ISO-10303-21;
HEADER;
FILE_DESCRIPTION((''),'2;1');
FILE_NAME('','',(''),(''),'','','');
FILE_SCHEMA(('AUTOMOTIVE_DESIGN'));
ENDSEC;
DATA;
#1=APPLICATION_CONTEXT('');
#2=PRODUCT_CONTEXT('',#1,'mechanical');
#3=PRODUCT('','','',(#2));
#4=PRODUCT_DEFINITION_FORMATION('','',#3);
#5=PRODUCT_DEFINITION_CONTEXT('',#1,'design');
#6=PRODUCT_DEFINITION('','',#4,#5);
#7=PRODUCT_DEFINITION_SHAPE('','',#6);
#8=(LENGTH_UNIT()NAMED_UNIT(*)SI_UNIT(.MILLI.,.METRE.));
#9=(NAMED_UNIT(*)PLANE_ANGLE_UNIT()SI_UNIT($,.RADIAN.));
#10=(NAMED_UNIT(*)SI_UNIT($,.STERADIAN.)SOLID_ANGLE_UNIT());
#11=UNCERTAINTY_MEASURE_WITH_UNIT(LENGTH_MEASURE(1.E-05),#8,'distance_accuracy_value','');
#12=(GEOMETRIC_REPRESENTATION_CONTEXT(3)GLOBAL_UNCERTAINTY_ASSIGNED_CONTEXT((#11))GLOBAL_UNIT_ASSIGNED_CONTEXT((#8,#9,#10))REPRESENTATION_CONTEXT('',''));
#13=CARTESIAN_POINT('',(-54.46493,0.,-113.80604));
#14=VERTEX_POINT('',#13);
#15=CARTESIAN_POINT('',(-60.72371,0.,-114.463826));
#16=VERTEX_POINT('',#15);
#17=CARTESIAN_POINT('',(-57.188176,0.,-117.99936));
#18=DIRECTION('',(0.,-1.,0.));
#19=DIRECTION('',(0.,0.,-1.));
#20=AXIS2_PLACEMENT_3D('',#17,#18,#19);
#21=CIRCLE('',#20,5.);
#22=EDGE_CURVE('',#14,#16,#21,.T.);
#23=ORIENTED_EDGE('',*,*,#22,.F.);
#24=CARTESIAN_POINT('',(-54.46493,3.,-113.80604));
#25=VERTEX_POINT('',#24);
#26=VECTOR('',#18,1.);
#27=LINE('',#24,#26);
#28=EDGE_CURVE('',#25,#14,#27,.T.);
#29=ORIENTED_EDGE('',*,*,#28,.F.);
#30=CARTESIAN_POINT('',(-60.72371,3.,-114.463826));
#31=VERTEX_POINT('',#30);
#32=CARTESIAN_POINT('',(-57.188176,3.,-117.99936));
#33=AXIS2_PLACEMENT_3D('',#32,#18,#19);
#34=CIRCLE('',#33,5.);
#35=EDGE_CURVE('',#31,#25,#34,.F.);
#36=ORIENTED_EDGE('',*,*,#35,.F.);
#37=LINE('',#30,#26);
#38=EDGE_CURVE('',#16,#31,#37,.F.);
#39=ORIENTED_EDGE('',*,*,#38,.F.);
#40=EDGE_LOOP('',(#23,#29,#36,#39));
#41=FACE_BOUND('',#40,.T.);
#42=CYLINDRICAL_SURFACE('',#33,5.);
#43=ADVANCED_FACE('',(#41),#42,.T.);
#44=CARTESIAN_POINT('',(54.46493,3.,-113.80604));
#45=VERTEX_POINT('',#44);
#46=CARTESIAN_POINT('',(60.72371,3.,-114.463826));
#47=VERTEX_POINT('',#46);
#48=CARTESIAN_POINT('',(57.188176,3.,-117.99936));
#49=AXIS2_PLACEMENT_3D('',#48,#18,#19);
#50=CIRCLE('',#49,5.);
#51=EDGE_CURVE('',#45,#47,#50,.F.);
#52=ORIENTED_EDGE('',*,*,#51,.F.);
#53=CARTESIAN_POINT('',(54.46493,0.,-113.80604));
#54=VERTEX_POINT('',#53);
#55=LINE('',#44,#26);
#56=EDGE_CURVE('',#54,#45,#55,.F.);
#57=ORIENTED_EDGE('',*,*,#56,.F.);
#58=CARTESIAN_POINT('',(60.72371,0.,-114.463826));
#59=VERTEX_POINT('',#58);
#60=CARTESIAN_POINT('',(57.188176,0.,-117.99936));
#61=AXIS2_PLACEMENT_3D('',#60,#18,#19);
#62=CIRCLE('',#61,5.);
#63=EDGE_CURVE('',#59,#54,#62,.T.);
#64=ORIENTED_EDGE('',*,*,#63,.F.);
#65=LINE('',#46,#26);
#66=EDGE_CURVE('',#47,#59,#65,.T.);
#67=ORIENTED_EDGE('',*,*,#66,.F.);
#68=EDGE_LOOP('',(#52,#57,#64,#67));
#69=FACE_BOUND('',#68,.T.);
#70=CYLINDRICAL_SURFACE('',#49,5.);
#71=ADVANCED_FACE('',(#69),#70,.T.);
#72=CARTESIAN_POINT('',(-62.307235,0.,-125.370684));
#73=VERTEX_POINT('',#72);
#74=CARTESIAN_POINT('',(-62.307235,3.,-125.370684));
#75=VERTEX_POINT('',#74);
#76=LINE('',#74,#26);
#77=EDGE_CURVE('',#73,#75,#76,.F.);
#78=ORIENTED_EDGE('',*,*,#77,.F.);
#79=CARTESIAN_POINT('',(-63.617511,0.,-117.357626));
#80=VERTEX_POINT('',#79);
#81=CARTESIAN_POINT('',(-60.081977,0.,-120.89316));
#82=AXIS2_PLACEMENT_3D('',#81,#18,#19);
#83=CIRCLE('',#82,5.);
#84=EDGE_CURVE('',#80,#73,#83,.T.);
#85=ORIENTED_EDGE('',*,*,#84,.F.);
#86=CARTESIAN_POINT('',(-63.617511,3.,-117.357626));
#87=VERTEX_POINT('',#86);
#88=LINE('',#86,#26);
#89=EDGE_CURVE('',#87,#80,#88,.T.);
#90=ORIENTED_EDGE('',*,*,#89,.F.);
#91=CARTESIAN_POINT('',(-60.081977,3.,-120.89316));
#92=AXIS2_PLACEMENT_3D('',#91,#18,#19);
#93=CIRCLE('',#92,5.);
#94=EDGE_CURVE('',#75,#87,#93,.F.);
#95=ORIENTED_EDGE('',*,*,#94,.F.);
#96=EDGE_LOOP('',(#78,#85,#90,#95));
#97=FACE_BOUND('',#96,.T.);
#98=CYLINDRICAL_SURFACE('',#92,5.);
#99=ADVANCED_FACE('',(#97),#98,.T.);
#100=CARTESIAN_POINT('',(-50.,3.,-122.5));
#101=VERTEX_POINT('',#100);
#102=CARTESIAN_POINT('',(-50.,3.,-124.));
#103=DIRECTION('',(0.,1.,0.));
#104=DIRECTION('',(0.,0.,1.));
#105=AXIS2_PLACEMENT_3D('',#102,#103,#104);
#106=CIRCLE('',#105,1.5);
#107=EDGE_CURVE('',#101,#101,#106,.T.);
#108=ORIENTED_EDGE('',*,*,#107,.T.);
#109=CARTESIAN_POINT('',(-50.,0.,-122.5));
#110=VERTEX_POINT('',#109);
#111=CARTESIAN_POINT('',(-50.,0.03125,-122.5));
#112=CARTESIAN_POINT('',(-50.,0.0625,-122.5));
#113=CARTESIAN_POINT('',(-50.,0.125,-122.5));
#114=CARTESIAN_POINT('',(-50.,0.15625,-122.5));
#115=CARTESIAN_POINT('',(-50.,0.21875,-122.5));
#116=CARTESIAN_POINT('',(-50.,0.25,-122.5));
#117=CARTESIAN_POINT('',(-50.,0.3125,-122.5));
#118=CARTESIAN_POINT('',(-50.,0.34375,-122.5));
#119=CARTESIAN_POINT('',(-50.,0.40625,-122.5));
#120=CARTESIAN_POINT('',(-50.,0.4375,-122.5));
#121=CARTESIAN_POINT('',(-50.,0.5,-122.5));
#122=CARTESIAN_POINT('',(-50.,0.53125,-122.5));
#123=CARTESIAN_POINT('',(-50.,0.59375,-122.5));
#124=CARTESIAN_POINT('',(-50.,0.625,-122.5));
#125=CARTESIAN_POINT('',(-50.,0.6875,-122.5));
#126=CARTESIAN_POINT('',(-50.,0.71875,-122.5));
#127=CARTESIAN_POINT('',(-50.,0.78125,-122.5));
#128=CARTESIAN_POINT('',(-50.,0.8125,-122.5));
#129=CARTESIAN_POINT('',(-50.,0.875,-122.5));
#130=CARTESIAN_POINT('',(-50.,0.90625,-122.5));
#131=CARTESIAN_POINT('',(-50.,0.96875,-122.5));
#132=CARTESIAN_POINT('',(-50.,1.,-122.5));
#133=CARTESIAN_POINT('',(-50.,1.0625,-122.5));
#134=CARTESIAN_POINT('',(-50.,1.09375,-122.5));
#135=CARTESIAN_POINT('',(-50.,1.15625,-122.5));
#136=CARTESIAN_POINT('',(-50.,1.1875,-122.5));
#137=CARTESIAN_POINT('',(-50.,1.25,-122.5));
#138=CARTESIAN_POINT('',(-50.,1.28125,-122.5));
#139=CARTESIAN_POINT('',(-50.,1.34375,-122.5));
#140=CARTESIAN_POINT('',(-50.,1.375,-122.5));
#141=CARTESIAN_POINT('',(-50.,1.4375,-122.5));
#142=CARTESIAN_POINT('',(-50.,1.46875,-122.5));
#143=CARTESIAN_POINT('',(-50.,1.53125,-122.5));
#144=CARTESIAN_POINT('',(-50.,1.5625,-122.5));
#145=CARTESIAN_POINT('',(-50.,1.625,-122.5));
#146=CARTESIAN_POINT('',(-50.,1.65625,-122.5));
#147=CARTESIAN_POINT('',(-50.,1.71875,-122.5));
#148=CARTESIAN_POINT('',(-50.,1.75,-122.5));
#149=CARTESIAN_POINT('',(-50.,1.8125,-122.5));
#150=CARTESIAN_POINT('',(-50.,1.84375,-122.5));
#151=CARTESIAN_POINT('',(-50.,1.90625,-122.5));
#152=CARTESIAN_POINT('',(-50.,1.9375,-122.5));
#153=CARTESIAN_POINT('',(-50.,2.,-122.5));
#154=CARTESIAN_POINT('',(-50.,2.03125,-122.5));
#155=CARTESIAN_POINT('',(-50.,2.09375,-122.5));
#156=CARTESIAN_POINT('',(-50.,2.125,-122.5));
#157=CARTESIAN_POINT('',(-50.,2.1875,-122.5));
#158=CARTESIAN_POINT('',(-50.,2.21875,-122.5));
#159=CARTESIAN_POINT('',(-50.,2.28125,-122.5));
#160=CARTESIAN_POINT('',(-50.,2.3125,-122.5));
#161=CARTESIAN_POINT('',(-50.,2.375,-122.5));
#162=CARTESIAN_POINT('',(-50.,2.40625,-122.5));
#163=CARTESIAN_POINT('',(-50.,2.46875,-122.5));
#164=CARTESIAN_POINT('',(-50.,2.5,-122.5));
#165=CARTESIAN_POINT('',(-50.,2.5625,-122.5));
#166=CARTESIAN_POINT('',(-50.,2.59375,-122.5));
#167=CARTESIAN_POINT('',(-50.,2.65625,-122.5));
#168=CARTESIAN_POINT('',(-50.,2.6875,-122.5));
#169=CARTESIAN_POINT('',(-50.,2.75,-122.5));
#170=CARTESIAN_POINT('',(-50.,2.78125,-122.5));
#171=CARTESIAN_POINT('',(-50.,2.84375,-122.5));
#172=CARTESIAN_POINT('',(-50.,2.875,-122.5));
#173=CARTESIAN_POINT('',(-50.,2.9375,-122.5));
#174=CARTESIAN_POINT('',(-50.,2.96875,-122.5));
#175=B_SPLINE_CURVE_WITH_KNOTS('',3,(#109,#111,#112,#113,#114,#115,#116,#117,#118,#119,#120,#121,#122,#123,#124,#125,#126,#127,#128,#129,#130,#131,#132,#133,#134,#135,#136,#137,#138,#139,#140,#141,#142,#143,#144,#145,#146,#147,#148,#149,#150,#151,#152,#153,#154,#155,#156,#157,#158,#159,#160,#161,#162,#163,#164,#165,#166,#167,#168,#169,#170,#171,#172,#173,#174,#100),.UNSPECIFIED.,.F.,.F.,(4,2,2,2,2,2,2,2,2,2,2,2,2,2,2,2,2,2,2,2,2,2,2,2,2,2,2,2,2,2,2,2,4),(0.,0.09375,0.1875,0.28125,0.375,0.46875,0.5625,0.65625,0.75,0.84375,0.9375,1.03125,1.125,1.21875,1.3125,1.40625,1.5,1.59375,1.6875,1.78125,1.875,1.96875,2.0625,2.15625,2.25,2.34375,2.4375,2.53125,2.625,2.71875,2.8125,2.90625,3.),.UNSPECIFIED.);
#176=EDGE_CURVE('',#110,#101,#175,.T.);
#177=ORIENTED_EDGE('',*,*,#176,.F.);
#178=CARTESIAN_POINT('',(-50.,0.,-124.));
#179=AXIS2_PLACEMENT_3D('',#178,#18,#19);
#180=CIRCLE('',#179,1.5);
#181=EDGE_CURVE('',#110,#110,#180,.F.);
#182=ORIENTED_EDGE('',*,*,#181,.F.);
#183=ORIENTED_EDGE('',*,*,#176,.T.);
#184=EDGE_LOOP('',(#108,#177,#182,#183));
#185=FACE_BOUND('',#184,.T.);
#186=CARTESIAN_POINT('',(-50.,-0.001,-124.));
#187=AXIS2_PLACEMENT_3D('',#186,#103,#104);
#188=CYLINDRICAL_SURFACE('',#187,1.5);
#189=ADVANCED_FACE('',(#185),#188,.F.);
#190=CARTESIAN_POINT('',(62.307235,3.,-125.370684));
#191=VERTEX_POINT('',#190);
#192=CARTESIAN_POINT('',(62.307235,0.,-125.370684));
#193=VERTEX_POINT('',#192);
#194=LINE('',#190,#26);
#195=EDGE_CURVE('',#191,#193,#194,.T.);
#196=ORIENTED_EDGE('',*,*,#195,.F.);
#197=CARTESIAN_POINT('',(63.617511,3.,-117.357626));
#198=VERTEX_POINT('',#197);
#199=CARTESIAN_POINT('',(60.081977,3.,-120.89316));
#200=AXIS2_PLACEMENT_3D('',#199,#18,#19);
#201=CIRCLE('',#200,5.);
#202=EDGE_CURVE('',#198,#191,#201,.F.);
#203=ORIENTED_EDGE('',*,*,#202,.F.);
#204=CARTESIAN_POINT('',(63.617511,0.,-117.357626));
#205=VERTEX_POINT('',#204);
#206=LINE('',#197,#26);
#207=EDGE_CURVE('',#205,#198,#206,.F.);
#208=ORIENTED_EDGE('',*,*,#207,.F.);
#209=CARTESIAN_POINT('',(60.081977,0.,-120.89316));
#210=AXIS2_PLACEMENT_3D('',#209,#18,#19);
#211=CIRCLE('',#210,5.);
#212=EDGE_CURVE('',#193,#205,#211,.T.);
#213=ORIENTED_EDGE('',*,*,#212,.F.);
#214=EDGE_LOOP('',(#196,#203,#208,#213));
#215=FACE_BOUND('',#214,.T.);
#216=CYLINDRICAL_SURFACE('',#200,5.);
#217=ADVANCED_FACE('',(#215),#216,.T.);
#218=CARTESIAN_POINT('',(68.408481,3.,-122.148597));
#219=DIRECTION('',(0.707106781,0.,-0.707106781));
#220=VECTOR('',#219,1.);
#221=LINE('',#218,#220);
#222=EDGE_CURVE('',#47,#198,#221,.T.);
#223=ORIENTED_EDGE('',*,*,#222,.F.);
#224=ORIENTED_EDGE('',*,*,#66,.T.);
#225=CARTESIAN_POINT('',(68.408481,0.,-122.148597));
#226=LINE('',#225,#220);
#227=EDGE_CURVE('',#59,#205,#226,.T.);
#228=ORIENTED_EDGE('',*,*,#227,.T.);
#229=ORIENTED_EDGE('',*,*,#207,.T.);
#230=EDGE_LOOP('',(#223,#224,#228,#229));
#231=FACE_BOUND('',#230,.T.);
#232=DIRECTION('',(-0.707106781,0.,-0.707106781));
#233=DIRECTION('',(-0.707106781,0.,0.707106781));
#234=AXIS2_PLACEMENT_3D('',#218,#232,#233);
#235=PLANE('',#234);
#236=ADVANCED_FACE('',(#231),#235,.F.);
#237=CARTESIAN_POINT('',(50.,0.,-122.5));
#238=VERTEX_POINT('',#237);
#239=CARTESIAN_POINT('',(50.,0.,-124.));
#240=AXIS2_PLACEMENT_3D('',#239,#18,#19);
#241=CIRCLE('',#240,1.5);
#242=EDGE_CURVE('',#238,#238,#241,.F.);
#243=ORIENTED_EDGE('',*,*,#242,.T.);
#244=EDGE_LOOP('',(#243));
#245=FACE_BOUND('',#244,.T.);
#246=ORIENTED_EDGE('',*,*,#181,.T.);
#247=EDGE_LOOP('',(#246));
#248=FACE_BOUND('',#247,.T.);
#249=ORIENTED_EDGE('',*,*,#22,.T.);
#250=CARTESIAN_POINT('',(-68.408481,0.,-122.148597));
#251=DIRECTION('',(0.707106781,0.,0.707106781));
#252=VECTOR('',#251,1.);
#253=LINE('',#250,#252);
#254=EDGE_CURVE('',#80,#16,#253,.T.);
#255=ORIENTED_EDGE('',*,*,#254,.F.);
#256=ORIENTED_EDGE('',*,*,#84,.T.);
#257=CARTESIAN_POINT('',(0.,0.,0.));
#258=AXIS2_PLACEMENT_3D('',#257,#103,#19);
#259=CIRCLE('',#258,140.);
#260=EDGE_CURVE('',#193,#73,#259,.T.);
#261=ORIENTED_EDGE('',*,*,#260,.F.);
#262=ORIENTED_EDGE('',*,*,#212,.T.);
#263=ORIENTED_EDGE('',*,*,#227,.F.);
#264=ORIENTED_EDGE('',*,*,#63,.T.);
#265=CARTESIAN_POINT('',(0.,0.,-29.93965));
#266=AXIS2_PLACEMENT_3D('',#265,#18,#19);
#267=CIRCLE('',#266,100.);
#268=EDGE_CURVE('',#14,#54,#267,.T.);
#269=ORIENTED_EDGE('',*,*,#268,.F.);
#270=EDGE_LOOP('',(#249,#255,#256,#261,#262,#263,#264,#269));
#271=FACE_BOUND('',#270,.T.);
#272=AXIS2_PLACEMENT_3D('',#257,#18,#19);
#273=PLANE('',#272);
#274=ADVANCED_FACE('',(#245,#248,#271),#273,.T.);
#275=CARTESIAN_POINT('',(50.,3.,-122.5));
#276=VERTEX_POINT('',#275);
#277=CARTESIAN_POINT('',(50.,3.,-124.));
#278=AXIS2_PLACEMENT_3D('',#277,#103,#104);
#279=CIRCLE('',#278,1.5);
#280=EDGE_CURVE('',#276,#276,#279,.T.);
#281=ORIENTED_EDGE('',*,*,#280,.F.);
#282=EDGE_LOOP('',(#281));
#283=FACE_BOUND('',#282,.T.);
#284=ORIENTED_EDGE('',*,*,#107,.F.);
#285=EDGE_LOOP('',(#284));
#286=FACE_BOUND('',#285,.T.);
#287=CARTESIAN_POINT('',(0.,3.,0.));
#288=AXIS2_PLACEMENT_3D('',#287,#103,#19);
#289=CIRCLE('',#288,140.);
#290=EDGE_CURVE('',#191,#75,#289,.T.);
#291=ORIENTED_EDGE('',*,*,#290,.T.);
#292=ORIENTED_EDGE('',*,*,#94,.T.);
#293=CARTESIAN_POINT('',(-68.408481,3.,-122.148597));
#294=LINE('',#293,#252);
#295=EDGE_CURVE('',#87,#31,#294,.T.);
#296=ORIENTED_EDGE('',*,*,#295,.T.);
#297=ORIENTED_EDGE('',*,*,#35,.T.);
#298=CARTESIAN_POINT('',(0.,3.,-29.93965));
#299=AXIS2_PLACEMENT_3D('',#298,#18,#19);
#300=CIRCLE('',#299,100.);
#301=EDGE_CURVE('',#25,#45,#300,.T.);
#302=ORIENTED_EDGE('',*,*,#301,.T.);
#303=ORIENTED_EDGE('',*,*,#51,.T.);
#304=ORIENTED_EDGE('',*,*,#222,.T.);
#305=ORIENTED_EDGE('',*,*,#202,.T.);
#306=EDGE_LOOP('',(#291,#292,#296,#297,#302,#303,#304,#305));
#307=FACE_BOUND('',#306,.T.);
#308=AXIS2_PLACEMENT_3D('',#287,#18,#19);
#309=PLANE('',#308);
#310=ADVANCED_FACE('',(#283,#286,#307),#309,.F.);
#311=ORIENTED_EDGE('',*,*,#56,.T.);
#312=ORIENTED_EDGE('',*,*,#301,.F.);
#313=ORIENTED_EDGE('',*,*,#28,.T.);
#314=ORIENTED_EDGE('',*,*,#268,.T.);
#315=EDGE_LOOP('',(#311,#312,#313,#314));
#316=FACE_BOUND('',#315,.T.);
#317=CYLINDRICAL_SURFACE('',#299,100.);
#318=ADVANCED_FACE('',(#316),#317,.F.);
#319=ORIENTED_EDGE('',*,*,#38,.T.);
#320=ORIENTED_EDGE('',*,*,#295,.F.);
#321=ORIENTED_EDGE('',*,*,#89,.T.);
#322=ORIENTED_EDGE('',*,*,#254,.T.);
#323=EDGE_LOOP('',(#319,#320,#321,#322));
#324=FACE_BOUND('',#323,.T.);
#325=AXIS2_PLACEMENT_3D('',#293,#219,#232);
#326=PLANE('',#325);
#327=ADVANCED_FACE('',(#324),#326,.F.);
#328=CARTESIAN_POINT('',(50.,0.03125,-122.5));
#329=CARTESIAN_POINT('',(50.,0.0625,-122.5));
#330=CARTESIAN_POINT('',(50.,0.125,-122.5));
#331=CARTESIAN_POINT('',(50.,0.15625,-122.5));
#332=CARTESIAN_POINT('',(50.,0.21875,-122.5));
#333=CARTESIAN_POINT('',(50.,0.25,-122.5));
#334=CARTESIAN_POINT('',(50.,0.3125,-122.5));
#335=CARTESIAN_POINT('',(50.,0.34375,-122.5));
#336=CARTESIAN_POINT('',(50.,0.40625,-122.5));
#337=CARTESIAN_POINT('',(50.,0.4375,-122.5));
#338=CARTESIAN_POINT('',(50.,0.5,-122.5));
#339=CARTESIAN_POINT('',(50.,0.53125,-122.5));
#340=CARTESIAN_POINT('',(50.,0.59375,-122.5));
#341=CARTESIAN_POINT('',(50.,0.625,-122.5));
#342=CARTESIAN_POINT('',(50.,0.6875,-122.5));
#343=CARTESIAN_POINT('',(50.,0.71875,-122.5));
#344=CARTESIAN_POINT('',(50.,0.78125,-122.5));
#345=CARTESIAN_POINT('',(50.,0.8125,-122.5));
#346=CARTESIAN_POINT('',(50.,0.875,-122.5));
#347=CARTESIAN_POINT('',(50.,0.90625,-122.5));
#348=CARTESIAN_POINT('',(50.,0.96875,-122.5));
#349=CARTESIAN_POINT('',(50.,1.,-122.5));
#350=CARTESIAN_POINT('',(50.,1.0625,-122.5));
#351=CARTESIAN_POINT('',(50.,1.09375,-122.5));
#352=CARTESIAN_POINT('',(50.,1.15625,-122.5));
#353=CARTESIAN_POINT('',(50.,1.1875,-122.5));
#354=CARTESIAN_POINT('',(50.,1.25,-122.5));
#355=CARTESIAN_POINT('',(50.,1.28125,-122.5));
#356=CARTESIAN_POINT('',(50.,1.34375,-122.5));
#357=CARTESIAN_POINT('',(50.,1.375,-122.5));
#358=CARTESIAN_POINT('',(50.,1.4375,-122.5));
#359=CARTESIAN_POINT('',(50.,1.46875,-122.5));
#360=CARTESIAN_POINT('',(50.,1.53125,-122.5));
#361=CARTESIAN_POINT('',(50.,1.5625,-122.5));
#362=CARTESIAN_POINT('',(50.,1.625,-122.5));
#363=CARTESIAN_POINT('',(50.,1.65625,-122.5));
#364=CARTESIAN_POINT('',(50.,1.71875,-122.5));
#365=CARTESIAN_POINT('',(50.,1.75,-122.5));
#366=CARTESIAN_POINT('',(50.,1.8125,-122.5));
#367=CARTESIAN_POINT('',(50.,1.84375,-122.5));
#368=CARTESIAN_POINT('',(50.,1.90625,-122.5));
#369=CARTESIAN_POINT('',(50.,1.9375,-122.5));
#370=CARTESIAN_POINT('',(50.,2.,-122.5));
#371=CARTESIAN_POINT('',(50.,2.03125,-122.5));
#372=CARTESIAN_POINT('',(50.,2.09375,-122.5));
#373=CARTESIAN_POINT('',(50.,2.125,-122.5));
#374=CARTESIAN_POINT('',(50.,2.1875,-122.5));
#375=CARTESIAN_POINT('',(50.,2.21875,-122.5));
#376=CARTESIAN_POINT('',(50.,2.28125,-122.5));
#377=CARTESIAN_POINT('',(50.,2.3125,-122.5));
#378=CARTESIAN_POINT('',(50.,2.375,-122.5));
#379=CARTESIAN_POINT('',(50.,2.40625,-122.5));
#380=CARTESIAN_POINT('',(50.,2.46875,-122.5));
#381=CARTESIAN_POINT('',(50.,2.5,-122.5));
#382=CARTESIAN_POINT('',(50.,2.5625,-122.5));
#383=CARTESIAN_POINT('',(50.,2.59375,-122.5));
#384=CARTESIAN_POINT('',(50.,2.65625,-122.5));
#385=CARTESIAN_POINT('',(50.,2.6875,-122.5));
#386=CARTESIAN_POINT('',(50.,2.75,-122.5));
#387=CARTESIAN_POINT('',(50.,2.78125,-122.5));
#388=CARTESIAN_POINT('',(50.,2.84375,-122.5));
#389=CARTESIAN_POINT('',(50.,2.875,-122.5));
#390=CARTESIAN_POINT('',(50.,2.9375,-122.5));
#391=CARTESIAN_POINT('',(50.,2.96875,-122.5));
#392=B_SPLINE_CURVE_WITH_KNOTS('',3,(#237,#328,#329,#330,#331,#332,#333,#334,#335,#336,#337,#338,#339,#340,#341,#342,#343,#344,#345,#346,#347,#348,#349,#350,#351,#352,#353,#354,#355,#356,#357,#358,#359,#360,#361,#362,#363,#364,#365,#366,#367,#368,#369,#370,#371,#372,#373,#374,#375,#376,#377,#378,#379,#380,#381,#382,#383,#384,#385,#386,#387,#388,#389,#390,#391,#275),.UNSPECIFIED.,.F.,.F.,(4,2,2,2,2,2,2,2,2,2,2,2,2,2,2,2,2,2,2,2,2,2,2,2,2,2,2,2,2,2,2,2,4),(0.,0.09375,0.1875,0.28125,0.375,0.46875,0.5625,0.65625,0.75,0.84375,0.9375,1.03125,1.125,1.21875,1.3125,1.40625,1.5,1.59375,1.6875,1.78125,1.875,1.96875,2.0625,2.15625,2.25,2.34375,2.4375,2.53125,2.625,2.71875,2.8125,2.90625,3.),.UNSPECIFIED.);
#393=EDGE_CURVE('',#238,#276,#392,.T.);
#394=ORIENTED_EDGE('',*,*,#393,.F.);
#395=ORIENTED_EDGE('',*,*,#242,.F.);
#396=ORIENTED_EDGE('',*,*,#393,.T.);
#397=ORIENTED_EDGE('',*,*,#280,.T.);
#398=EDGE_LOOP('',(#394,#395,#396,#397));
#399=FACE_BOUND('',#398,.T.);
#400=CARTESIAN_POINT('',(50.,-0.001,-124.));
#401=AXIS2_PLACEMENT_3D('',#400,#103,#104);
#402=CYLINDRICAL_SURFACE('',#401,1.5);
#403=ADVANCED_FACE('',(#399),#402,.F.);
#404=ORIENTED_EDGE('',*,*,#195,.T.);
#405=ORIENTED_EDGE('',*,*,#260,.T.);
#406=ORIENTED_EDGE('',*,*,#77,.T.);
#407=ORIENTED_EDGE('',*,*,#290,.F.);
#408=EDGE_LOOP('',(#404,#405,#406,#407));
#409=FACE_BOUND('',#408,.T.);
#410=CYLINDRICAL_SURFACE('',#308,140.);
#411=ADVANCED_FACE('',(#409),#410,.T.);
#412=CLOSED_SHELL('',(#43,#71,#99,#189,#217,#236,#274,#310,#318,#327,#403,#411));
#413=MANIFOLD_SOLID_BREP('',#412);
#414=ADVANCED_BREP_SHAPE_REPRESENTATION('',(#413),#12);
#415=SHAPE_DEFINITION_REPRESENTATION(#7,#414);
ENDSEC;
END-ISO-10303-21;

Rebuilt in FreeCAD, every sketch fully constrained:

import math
import FreeCAD as App
import Part
import Sketcher
from FreeCAD import Vector
Q = App.Units.Quantity


def edges_at(feature, points):
    """Names of the edges that pass closest to the given points."""
    edges = feature.Shape.Edges
    near = lambda p: min(range(len(edges)), key=lambda i: edges[i].distToShape(Part.Vertex(*p))[0])
    return sorted({f"Edge{near(p) + 1}" for p in points})

doc = App.newDocument("Part")
body = doc.addObject("PartDesign::Body", "Body")

sketch1 = body.newObject("Sketcher::SketchObject", "Sketch")
sketch1.AttachmentSupport = (doc.getObject("XZ_Plane"), [""])
sketch1.MapMode = "FlatFace"
sketch1.addGeometry(Part.LineSegment(Vector(-68.408481, -122.148597, 0), Vector(-57.80188, -111.541995, 0)), False)
sketch1.addGeometry(Part.ArcOfCircle(Part.Circle(Vector(0, -29.93965, 0), Vector(0, 0, 1), 100), math.radians(-125.311316), math.radians(-54.688684)), False)
sketch1.addGeometry(Part.LineSegment(Vector(57.80188, -111.541995, 0), Vector(68.408481, -122.148597, 0)), False)
sketch1.addGeometry(Part.ArcOfCircle(Part.Circle(Vector(0, 0, 0), Vector(0, 0, 1), 140), math.radians(-119.250707), math.radians(-60.749293)), False)
sketch1.addConstraint(Sketcher.Constraint("Coincident", 0, 2, 1, 1))
sketch1.addConstraint(Sketcher.Constraint("Coincident", 1, 2, 2, 1))
sketch1.addConstraint(Sketcher.Constraint("Coincident", 2, 2, 3, 2))
sketch1.addConstraint(Sketcher.Constraint("Coincident", 3, 1, 0, 1))
sketch1.addConstraint(Sketcher.Constraint("Coincident", 3, 3, -1, 1))
sketch1.addConstraint(Sketcher.Constraint("Symmetric", 0, 2, 1, 2, -2))
sketch1.addConstraint(Sketcher.Constraint("Perpendicular", 0, 2))
sketch1.addConstraint(Sketcher.Constraint("Horizontal", 2, 2, 3, 1))
sketch1.addConstraint(Sketcher.Constraint("Radius", 1, Q("100 mm")))
sketch1.addConstraint(Sketcher.Constraint("Radius", 3, Q("140 mm")))
sketch1.addConstraint(Sketcher.Constraint("Distance", 0, Q("15 mm")))
sketch1.addConstraint(Sketcher.Constraint("DistanceY", 1, 3, -1, 1, Q("29.93965 mm")))
pad1 = body.newObject("PartDesign::Pad", "Pad")
pad1.Profile = sketch1
pad1.Length = 3
pad1.Reversed = True
doc.recompute()

fillet = body.newObject("PartDesign::Fillet", "Fillet")
fillet.Base = (pad1, edges_at(pad1, [
    (68.408, 1.5, -122.149),
    (57.802, 1.5, -111.542),
    (-57.802, 1.5, -111.542),
    (-68.408, 1.5, -122.149),
]))
fillet.Radius = 5

sketch2 = body.newObject("Sketcher::SketchObject", "Sketch001")
sketch2.AttachmentSupport = (doc.getObject("XZ_Plane"), [""])
sketch2.MapMode = "FlatFace"
sketch2.AttachmentOffset = App.Placement(Vector(0, 0, -3), App.Rotation())
sketch2.addGeometry(Part.Circle(Vector(-50, -124, 0), Vector(0, 0, 1), 1.5), False)
sketch2.addConstraint(Sketcher.Constraint("Diameter", 0, Q("3 mm")))
sketch2.addConstraint(Sketcher.Constraint("DistanceX", 0, 3, -1, 1, Q("50 mm")))
sketch2.addConstraint(Sketcher.Constraint("DistanceY", 0, 3, -1, 1, Q("124 mm")))
pocket1 = body.newObject("PartDesign::Pocket", "Pocket")
pocket1.Profile = sketch2
pocket1.Type = "UpToFirst"
pocket1.Reversed = True

sketch3 = body.newObject("Sketcher::SketchObject", "Sketch002")
sketch3.AttachmentSupport = (doc.getObject("XZ_Plane"), [""])
sketch3.MapMode = "FlatFace"
sketch3.AttachmentOffset = App.Placement(Vector(0, 0, -3), App.Rotation())
sketch3.addGeometry(Part.Circle(Vector(50, -124, 0), Vector(0, 0, 1), 1.5), False)
sketch3.addConstraint(Sketcher.Constraint("Diameter", 0, Q("3 mm")))
sketch3.addConstraint(Sketcher.Constraint("DistanceX", -1, 1, 0, 3, Q("50 mm")))
sketch3.addConstraint(Sketcher.Constraint("DistanceY", 0, 3, -1, 1, Q("124 mm")))
pocket2 = body.newObject("PartDesign::Pocket", "Pocket001")
pocket2.Profile = sketch3
pocket2.Type = "UpToFirst"
pocket2.Reversed = True

doc.recompute()
